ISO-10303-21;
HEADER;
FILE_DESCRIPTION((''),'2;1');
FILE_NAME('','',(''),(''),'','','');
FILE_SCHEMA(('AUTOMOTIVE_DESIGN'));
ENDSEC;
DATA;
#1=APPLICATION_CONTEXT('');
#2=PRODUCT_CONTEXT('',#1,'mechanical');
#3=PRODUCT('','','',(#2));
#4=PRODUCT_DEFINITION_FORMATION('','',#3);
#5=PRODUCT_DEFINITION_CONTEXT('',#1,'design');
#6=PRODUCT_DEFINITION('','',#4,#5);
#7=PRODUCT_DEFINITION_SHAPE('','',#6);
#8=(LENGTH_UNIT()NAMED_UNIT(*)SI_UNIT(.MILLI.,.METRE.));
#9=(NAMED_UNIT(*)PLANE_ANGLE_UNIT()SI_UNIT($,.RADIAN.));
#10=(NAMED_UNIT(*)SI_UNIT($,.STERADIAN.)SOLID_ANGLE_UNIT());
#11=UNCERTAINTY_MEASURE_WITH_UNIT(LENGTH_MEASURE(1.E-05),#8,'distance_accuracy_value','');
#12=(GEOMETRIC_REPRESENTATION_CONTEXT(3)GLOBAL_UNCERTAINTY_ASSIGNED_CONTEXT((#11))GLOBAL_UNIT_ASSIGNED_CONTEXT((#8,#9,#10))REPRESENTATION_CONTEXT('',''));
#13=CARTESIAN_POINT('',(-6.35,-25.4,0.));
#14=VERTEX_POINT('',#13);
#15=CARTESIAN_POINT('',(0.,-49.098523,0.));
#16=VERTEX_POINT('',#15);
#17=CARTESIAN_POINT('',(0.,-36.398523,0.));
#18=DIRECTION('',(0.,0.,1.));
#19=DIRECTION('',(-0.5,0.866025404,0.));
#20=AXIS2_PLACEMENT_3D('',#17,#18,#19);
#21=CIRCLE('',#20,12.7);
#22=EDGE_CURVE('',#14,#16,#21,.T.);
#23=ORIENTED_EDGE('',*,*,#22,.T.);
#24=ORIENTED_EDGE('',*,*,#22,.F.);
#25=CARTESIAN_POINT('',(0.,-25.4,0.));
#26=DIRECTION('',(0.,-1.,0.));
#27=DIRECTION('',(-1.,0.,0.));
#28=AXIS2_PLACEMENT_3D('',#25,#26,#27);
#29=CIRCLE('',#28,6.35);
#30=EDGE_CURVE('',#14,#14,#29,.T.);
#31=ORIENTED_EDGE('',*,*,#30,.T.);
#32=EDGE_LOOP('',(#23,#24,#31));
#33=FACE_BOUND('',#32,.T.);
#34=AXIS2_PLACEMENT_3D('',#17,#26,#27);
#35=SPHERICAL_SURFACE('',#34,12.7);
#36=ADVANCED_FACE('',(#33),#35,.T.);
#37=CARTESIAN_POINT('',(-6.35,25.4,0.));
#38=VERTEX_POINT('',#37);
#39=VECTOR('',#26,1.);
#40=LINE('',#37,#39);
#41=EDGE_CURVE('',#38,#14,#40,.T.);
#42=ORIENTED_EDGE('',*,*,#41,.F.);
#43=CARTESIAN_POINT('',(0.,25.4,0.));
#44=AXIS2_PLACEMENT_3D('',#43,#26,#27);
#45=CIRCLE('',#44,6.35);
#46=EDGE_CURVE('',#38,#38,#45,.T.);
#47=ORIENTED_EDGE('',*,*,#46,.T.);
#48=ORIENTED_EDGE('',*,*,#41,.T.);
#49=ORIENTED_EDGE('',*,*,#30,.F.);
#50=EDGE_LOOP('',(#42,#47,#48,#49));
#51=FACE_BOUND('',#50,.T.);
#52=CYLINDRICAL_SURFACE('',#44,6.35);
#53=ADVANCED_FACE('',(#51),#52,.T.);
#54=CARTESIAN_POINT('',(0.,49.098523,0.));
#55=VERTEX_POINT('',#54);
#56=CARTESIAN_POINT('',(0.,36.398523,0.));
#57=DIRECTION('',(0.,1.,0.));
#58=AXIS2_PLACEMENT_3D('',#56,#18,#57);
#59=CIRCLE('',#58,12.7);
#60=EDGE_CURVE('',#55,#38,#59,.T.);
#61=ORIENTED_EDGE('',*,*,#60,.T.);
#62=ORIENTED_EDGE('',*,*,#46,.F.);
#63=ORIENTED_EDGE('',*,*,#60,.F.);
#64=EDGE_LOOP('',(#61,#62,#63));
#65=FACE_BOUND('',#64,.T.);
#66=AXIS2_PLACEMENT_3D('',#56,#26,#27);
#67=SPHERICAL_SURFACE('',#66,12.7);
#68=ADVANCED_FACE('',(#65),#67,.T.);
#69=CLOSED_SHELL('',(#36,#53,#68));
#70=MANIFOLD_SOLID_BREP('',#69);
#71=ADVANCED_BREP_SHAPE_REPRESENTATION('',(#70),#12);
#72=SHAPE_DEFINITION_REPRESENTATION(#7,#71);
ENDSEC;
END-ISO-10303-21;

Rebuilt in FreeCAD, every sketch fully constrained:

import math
import FreeCAD as App
import Part
import Sketcher
Q = App.Units.Quantity

doc = App.newDocument("Part")
body = doc.addObject("PartDesign::Body", "Body")

# Sketch on XY plane
sketch1 = doc.addObject("Sketcher::SketchObject", "Sketch")
body.addObject(sketch1)
sketch1.AttachmentSupport = (doc.XY_Plane, [""])
sketch1.MapMode = "FlatFace"
sketch1.addGeometry(Part.ArcOfCircle(Part.Circle(App.Vector(0, 36, 0), App.Vector(0, 0, 1), 13), math.radians(90), math.radians(240)), False)
sketch1.addGeometry(Part.LineSegment(App.Vector(-6, 25, 0), App.Vector(-6, -25, 0)), False)
sketch1.addGeometry(Part.ArcOfCircle(Part.Circle(App.Vector(0, -36, 0), App.Vector(0, 0, 1), 13), math.radians(120), math.radians(270)), False)
sketch1.addGeometry(Part.LineSegment(App.Vector(0, -49, 0), App.Vector(0, 49, 0)), False)
sketch1.addConstraint(Sketcher.Constraint("Coincident", 0, 2, 1, 1))
sketch1.addConstraint(Sketcher.Constraint("Coincident", 1, 2, 2, 1))
sketch1.addConstraint(Sketcher.Constraint("Coincident", 2, 2, 3, 1))
sketch1.addConstraint(Sketcher.Constraint("Coincident", 3, 2, 0, 1))
sketch1.addConstraint(Sketcher.Constraint("Vertical", 1))
sketch1.addConstraint(Sketcher.Constraint("Vertical", 3))
sketch1.addConstraint(Sketcher.Constraint("Equal", 0, 2))
sketch1.addConstraint(Sketcher.Constraint("Symmetric", 0, 3, 2, 3, -1, 1))
sketch1.addConstraint(Sketcher.Constraint("PointOnObject", 0, 3, -2))
sketch1.addConstraint(Sketcher.Constraint("PointOnObject", 2, 2, -2))
sketch1.addConstraint(Sketcher.Constraint("Radius", 0, Q("0.5 in")))
sketch1.addConstraint(Sketcher.Constraint("DistanceY", 1, 2, 1, 1, Q("2 in")))
sketch1.addConstraint(Sketcher.Constraint("DistanceX", 0, 2, -1, 1, Q("0.25 in")))
revolution = doc.addObject("PartDesign::Revolution", "Revolution")
body.addObject(revolution)
revolution.Profile = sketch1
revolution.ReferenceAxis = (sketch1, ["V_Axis"])
revolution.Angle = 360

doc.recompute()
